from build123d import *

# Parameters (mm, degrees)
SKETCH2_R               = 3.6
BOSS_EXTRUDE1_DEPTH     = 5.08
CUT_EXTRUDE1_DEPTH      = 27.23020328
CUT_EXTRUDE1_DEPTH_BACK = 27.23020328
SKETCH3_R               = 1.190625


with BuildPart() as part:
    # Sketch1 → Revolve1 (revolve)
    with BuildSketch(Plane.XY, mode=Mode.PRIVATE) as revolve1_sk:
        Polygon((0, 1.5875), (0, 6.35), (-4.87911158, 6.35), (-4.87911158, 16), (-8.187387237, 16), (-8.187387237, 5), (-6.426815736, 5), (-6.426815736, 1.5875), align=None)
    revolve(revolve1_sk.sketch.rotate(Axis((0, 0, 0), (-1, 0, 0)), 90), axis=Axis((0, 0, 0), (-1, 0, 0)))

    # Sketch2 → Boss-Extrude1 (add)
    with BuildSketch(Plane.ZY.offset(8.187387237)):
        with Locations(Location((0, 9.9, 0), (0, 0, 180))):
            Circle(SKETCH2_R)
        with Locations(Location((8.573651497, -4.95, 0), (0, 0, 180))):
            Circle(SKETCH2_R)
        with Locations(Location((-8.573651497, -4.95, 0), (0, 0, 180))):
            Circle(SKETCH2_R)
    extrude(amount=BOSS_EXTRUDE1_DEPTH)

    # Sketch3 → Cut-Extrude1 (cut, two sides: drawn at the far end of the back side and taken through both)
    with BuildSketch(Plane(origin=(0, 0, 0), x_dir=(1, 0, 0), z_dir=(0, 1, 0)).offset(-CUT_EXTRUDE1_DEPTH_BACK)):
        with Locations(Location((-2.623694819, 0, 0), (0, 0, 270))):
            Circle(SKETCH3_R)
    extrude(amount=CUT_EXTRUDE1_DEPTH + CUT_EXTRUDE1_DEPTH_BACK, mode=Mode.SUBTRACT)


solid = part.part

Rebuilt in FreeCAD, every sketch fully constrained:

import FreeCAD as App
import Part
import Sketcher
from FreeCAD import Vector
Q = App.Units.Quantity


def add_polygon(sketch, points):
    """Adds a closed chain of lines whose ends are joined by coincident constraints."""
    first, n = sketch.GeometryCount, len(points)
    for a, b in zip(points, points[1:] + points[:1]):
        sketch.addGeometry(Part.LineSegment(App.Vector(*a, 0), App.Vector(*b, 0)), False)
    for i in range(n):
        sketch.addConstraint(Sketcher.Constraint("Coincident", first + i, 2, first + (i + 1) % n, 1))

doc = App.newDocument("Part")
body = doc.addObject("PartDesign::Body", "Body")

sketch1 = body.newObject("Sketcher::SketchObject", "Sketch")
sketch1.AttachmentSupport = (doc.getObject("XY_Plane"), [""])
sketch1.MapMode = "FlatFace"
add_polygon(sketch1, [(0, 1.5875), (0, 6.35), (-4.879112, 6.35), (-4.879112, 16), (-8.187387, 16), (-8.187387, 5), (-6.426816, 5), (-6.426816, 1.5875)])
sketch1.addConstraint([
    Sketcher.Constraint("Vertical", 0),
    Sketcher.Constraint("Horizontal", 1),
    Sketcher.Constraint("Vertical", 2),
    Sketcher.Constraint("Horizontal", 3),
    Sketcher.Constraint("Vertical", 4),
    Sketcher.Constraint("Horizontal", 5),
    Sketcher.Constraint("Vertical", 6),
    Sketcher.Constraint("Horizontal", 7),
    Sketcher.Constraint("PointOnObject", 0, 2, -2),
    Sketcher.Constraint("DistanceY", 0, 1, 0, 2, Q("0.1875 in")),
    Sketcher.Constraint("DistanceY", -1, 1, 0, 2, Q("0.25 in")),
    Sketcher.Constraint("DistanceY", 2, 1, 2, 2, Q("9.65 mm")),
    Sketcher.Constraint("DistanceY", 4, 2, 4, 1, Q("11 mm")),
    Sketcher.Constraint("DistanceX", 1, 2, 1, 1, Q("4.879112 mm")),
    Sketcher.Constraint("DistanceX", 5, 1, 5, 2, Q("1.760572 mm")),
    Sketcher.Constraint("DistanceX", 3, 2, 3, 1, Q("3.308276 mm")),
])
revolution = body.newObject("PartDesign::Revolution", "Revolution")
revolution.Profile = sketch1
revolution.ReferenceAxis = (sketch1, ["H_Axis"])
revolution.Angle = 360

sketch2 = body.newObject("Sketcher::SketchObject", "Sketch001")
sketch2.AttachmentSupport = (doc.getObject("YZ_Plane"), [""])
sketch2.MapMode = "FlatFace"
sketch2.AttachmentOffset = App.Placement(Vector(0, 0, -8.187387), App.Rotation())
sketch2.addGeometry([
    Part.Circle(Vector(9.9, 0, 0), Vector(0, 0, 1), 3.6),
    Part.Circle(Vector(-4.95, 8.573651, 0), Vector(0, 0, 1), 3.6),
    Part.Circle(Vector(-4.95, -8.573651, 0), Vector(0, 0, 1), 3.6),
], False)
sketch2.addConstraint([
    Sketcher.Constraint("Equal", 0, 1),
    Sketcher.Constraint("Equal", 1, 2),
    Sketcher.Constraint("Symmetric", 1, 3, 2, 3, -1),
    Sketcher.Constraint("PointOnObject", 0, 3, -1),
    Sketcher.Constraint("Diameter", 0, Q("7.2 mm")),
    Sketcher.Constraint("DistanceX", -1, 1, 0, 3, Q("9.9 mm")),
    Sketcher.Constraint("DistanceX", 1, 3, -1, 1, Q("4.95 mm")),
    Sketcher.Constraint("DistanceY", -1, 1, 1, 3, Q("8.573651 mm")),
])
pad1 = body.newObject("PartDesign::Pad", "Pad")
pad1.Profile = sketch2
pad1.Length = Q("0.2 in")
pad1.Reversed = True

sketch3 = body.newObject("Sketcher::SketchObject", "Sketch002")
sketch3.AttachmentSupport = (doc.getObject("XZ_Plane"), [""])
sketch3.MapMode = "FlatFace"
sketch3.addGeometry(Part.Circle(Vector(-2.623695, 0, 0), Vector(0, 0, 1), 1.190625), False)
sketch3.addConstraint([
    Sketcher.Constraint("PointOnObject", 0, 3, -1),
    Sketcher.Constraint("Diameter", 0, Q("0.09375 in")),
    Sketcher.Constraint("DistanceX", 0, 3, -1, 1, Q("2.623695 mm")),
])
pocket1 = body.newObject("PartDesign::Pocket", "Pocket")
pocket1.Profile = sketch3
pocket1.Type = "ThroughAll"
pocket1.Midplane = True

doc.recompute()
